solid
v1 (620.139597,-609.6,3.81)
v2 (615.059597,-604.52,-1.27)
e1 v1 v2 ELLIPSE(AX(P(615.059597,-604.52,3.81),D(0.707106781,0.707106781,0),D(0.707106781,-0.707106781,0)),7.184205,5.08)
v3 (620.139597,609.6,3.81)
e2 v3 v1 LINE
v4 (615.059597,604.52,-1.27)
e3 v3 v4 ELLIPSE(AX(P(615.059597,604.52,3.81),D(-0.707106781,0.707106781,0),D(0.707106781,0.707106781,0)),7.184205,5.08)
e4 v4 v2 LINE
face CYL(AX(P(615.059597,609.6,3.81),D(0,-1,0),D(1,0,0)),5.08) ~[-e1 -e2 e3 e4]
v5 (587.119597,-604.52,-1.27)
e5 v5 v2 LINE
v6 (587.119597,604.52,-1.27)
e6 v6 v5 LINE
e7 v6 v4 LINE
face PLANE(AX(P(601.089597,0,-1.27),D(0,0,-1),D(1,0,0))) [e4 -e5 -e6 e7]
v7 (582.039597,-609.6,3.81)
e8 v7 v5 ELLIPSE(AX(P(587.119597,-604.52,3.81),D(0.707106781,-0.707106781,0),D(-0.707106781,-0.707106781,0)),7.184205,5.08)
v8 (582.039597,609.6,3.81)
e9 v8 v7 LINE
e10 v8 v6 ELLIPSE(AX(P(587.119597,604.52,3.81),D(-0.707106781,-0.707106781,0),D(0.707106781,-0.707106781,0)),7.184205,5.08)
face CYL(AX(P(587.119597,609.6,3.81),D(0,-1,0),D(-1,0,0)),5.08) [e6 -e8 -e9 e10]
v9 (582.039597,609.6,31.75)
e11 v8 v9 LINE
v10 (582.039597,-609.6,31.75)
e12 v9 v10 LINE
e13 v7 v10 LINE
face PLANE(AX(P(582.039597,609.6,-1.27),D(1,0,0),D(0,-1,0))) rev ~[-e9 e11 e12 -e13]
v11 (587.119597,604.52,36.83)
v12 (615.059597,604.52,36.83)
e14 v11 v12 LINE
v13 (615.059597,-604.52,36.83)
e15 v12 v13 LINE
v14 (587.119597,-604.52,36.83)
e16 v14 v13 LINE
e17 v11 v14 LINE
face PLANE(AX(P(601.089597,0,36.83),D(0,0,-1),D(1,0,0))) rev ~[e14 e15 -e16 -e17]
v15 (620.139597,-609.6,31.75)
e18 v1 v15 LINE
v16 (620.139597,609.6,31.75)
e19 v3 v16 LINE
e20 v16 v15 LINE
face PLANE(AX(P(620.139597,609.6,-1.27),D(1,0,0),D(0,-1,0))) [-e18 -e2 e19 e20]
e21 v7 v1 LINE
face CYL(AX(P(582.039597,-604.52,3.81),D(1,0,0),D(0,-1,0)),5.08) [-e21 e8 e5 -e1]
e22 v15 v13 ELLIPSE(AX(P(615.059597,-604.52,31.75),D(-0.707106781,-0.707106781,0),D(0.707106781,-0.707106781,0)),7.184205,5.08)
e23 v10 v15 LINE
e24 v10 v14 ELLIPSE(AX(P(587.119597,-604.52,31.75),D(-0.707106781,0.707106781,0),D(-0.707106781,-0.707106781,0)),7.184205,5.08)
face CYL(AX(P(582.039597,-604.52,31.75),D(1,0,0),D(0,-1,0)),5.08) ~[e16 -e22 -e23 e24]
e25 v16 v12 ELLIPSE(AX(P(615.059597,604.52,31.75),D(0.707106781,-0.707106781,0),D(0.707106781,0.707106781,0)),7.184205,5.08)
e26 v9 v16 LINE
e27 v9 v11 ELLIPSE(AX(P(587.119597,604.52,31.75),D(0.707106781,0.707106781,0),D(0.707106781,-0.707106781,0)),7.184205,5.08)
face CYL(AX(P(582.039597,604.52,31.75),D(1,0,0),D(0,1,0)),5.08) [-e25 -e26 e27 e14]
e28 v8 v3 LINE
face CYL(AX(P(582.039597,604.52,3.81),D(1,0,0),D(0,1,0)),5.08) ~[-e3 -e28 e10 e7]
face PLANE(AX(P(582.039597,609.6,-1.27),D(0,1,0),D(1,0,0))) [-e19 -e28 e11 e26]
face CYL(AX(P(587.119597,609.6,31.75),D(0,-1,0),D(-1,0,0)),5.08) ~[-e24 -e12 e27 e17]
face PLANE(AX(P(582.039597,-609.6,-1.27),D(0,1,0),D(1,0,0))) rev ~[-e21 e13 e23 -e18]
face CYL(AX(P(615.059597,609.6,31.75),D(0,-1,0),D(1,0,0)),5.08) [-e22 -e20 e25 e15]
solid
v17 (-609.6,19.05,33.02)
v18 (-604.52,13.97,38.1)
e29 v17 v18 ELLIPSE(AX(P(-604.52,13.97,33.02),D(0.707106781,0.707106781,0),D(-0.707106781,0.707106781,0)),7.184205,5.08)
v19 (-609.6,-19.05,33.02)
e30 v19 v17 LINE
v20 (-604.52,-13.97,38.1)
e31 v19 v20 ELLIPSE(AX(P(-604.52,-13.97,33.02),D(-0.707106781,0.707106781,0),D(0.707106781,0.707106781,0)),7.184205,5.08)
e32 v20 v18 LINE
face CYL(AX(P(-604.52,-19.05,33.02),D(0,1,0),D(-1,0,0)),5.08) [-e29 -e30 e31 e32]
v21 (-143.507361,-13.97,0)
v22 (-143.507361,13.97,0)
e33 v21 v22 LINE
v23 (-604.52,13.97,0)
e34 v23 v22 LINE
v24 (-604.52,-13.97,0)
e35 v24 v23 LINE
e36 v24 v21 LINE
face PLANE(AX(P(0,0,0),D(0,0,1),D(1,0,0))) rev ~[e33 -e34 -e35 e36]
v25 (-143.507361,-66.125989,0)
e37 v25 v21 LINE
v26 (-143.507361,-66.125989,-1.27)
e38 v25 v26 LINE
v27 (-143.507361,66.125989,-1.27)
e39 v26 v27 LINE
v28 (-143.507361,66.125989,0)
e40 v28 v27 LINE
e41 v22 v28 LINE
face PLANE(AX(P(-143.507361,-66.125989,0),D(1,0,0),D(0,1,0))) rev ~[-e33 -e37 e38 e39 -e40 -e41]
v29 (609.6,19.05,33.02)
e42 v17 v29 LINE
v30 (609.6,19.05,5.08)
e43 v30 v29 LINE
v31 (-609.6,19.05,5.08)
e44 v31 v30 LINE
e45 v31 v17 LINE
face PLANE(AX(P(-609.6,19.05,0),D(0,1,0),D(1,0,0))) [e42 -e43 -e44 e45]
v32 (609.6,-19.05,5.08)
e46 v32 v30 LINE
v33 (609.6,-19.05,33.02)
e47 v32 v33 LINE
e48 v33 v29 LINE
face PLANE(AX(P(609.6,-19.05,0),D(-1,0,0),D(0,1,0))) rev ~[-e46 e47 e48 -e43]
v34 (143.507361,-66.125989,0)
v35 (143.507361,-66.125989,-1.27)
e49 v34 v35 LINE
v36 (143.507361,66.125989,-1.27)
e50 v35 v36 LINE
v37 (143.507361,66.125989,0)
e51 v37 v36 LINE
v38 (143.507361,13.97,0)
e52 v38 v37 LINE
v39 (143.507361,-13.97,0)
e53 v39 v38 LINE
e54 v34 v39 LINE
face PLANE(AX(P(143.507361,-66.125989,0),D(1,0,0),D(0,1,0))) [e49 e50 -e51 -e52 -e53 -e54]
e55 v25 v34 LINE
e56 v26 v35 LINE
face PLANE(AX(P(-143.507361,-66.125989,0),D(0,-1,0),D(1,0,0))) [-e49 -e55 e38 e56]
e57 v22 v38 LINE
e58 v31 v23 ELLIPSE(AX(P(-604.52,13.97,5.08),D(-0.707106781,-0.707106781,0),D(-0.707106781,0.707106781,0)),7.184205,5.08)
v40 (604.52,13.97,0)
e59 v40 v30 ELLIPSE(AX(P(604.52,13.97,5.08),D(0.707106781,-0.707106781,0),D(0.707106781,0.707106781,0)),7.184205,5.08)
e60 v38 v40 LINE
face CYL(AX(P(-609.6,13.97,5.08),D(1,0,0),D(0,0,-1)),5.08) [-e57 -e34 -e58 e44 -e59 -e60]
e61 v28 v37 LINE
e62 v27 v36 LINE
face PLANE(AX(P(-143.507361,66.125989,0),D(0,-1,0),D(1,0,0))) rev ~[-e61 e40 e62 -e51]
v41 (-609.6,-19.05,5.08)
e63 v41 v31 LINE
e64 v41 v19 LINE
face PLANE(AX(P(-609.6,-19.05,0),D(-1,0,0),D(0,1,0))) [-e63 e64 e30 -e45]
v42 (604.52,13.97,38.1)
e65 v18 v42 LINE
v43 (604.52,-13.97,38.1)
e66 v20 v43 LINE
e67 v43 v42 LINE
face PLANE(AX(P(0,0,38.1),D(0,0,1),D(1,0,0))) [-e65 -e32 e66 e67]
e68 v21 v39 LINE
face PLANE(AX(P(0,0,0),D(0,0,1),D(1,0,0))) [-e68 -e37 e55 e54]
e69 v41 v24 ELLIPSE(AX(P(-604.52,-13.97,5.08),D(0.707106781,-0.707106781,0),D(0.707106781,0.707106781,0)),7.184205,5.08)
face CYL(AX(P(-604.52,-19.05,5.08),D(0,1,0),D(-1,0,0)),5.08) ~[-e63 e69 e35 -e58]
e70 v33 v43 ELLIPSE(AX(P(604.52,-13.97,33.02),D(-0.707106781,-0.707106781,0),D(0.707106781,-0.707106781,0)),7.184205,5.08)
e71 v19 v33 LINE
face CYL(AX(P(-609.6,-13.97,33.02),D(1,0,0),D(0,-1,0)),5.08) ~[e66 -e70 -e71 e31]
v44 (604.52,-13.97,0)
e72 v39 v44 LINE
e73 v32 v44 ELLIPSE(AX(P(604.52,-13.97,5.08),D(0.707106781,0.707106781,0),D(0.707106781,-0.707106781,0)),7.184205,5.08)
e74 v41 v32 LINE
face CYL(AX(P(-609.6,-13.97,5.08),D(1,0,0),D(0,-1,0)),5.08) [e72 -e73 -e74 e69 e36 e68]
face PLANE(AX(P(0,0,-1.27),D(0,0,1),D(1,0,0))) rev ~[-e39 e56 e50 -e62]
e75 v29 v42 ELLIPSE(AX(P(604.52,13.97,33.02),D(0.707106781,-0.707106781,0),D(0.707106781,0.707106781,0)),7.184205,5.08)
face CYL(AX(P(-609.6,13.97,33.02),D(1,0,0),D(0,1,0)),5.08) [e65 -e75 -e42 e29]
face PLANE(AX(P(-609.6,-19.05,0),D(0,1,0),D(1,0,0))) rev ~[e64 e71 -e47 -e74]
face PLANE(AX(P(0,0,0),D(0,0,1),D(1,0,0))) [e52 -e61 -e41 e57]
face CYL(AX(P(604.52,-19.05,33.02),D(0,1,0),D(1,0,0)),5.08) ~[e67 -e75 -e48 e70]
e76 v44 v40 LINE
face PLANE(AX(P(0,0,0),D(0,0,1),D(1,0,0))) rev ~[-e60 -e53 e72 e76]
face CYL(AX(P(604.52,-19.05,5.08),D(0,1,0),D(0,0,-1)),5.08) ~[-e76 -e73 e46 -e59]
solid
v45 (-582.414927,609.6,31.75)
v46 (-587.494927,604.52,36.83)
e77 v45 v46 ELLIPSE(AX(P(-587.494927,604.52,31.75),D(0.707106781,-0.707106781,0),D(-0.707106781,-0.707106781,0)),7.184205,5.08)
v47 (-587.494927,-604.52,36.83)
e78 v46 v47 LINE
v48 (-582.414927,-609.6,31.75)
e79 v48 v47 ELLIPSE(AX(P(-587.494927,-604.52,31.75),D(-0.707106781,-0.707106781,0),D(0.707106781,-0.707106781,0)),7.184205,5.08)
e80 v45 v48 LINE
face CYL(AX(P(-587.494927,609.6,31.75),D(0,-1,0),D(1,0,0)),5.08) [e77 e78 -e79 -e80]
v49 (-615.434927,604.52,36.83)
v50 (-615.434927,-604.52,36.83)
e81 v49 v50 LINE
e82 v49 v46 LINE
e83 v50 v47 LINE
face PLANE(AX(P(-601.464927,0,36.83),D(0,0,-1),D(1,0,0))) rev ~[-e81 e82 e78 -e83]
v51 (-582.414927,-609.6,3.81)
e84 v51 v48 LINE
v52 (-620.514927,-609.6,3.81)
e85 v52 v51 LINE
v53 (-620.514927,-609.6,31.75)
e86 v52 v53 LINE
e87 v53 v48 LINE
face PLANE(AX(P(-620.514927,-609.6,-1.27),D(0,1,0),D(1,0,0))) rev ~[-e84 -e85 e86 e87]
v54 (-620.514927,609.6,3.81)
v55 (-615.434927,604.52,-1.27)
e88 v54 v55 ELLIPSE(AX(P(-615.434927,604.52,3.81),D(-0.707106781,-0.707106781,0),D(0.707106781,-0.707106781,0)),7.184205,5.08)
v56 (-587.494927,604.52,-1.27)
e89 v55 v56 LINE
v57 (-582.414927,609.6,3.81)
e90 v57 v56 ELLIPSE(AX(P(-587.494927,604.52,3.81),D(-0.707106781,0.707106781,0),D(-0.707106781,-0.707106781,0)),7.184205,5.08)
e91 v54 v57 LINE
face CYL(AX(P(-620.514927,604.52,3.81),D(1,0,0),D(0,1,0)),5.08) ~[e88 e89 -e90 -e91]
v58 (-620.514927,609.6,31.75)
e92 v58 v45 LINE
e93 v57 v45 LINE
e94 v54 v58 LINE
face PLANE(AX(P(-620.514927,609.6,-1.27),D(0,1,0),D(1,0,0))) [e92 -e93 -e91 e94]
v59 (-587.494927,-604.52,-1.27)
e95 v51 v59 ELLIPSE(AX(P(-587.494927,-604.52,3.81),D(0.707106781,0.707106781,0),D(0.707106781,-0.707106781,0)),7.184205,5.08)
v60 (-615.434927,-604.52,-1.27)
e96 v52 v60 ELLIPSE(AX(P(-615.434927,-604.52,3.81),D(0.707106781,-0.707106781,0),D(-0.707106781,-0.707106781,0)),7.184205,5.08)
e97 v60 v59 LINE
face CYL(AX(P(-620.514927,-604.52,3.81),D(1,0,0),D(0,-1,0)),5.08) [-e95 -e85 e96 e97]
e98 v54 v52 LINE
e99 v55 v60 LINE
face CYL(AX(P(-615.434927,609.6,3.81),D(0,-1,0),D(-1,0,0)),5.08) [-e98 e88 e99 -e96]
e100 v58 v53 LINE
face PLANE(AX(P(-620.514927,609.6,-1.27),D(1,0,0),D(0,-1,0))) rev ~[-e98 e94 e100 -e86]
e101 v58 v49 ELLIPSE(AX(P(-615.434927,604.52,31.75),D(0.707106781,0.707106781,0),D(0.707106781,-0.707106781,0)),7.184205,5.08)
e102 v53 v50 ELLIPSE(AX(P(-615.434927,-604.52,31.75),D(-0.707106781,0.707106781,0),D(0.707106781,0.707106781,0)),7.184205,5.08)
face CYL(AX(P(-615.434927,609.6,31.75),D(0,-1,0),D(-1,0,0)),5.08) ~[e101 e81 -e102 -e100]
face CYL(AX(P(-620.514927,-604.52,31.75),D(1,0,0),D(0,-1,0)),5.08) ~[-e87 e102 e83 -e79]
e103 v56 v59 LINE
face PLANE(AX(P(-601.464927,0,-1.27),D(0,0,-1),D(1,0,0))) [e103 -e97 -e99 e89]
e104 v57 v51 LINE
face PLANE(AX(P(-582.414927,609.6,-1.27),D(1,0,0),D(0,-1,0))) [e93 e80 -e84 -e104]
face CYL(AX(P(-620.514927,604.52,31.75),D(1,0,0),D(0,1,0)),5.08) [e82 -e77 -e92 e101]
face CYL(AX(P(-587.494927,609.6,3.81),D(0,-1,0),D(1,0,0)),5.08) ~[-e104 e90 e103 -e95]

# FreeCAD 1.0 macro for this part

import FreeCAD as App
import Part
import Sketcher

V = App.Vector
Q = App.Units.Quantity


def edges_at(feature, points):
    """Names of the edges that pass closest to the given points."""
    edges = feature.Shape.Edges
    near = lambda p: min(range(len(edges)), key=lambda i: edges[i].distToShape(Part.Vertex(*p))[0])
    return sorted({f"Edge{near(p) + 1}" for p in points})

doc = App.newDocument("Part")
body = doc.addObject("PartDesign::Body", "Body")

sketch1 = doc.addObject("Sketcher::SketchObject", "Sketch")
body.addObject(sketch1)
sketch1.AttachmentSupport = (doc.XY_Plane, [""])
sketch1.MapMode = "FlatFace"
sketch1.addGeometry([
    Part.LineSegment(V(-610, 19, 0), V(-610, -19, 0)),
    Part.LineSegment(V(-610, -19, 0), V(610, -19, 0)),
    Part.LineSegment(V(610, -19, 0), V(610, 19, 0)),
    Part.LineSegment(V(610, 19, 0), V(-610, 19, 0)),
], False)
sketch1.addConstraint([
    Sketcher.Constraint("Coincident", 0, 2, 1, 1),
    Sketcher.Constraint("Coincident", 1, 2, 2, 1),
    Sketcher.Constraint("Coincident", 2, 2, 3, 1),
    Sketcher.Constraint("Coincident", 3, 2, 0, 1),
    Sketcher.Constraint("Vertical", 0),
    Sketcher.Constraint("Horizontal", 1),
    Sketcher.Constraint("Vertical", 2),
    Sketcher.Constraint("Horizontal", 3),
    Sketcher.Constraint("Symmetric", 0, 2, 2, 2, -1, 1),
    Sketcher.Constraint("DistanceX", 1, 1, 1, 2, Q("48 in")),
    Sketcher.Constraint("DistanceY", 0, 2, 0, 1, Q("1.5 in")),
])
pad1 = doc.addObject("PartDesign::Pad", "Pad")
body.addObject(pad1)
pad1.Profile = sketch1
pad1.Length = Q("1.5 in")
doc.recompute()

fillet = doc.addObject("PartDesign::Fillet", "Fillet")
body.addObject(fillet)
fillet.Base = (pad1, edges_at(pad1, [
    (-609.6, 0, 38.1),
    (0, -19.05, 38.1),
    (609.6, 0, 38.1),
    (0, 19.05, 38.1),
]))
fillet.Radius = Q("0.2 in")
doc.recompute()

fillet2 = doc.addObject("PartDesign::Fillet", "Fillet001")
body.addObject(fillet2)
fillet2.Base = (fillet, edges_at(fillet, [
    (-609.6, 0, 0),
    (0, 19.05, 0),
    (0, -19.05, 0),
    (609.6, 0, 0),
]))
fillet2.Radius = Q("0.2 in")

sketch2 = doc.addObject("Sketcher::SketchObject", "Sketch001")
body.addObject(sketch2)
sketch2.AttachmentSupport = (doc.XY_Plane, [""])
sketch2.MapMode = "FlatFace"
sketch2.addGeometry([
    Part.LineSegment(V(-144, 66, 0), V(-144, -66, 0)),
    Part.LineSegment(V(-144, -66, 0), V(144, -66, 0)),
    Part.LineSegment(V(144, -66, 0), V(144, 66, 0)),
    Part.LineSegment(V(144, 66, 0), V(-144, 66, 0)),
], False)
sketch2.addConstraint([
    Sketcher.Constraint("Coincident", 0, 2, 1, 1),
    Sketcher.Constraint("Coincident", 1, 2, 2, 1),
    Sketcher.Constraint("Coincident", 2, 2, 3, 1),
    Sketcher.Constraint("Coincident", 3, 2, 0, 1),
    Sketcher.Constraint("Vertical", 0),
    Sketcher.Constraint("Horizontal", 1),
    Sketcher.Constraint("Vertical", 2),
    Sketcher.Constraint("Horizontal", 3),
    Sketcher.Constraint("Symmetric", 0, 2, 2, 2, -1, 1),
    Sketcher.Constraint("DistanceX", 1, 1, 1, 2, 287.014722),
    Sketcher.Constraint("DistanceY", 0, 2, 0, 1, 132.251978),
])
pad2 = doc.addObject("PartDesign::Pad", "Pad001")
body.addObject(pad2)
pad2.Profile = sketch2
pad2.Length = Q("0.05 in")
pad2.Reversed = True
body2 = doc.addObject("PartDesign::Body", "Body001")
body2.AllowCompound = True

sketch3 = doc.addObject("Sketcher::SketchObject", "Sketch002")
body2.addObject(sketch3)
sketch3.AttachmentSupport = (doc.getObject("XY_Plane001"), [""])
sketch3.MapMode = "FlatFace"
sketch3.AttachmentOffset = App.Placement(V(0, 0, -0.05 * 25.4), App.Rotation())
sketch3.addGeometry([
    Part.LineSegment(V(-621, -610, 0), V(-621, 610, 0)),
    Part.LineSegment(V(-621, 610, 0), V(-582, 610, 0)),
    Part.LineSegment(V(-582, 610, 0), V(-582, -610, 0)),
    Part.LineSegment(V(-582, -610, 0), V(-621, -610, 0)),
    Part.LineSegment(V(582, -610, 0), V(582, 610, 0)),
    Part.LineSegment(V(582, 610, 0), V(620, 610, 0)),
    Part.LineSegment(V(620, 610, 0), V(620, -610, 0)),
    Part.LineSegment(V(620, -610, 0), V(582, -610, 0)),
], False)
sketch3.addConstraint([
    Sketcher.Constraint("Coincident", 0, 2, 1, 1),
    Sketcher.Constraint("Coincident", 1, 2, 2, 1),
    Sketcher.Constraint("Coincident", 2, 2, 3, 1),
    Sketcher.Constraint("Coincident", 3, 2, 0, 1),
    Sketcher.Constraint("Coincident", 4, 2, 5, 1),
    Sketcher.Constraint("Coincident", 5, 2, 6, 1),
    Sketcher.Constraint("Coincident", 6, 2, 7, 1),
    Sketcher.Constraint("Coincident", 7, 2, 4, 1),
    Sketcher.Constraint("Vertical", 0),
    Sketcher.Constraint("Horizontal", 1),
    Sketcher.Constraint("Vertical", 2),
    Sketcher.Constraint("Horizontal", 3),
    Sketcher.Constraint("Vertical", 4),
    Sketcher.Constraint("Horizontal", 5),
    Sketcher.Constraint("Vertical", 6),
    Sketcher.Constraint("Horizontal", 7),
    Sketcher.Constraint("Horizontal", 1, 2, 4, 2),
    Sketcher.Constraint("Horizontal", 3, 2, 6, 2),
    Sketcher.Constraint("Equal", 3, 5),
    Sketcher.Constraint("DistanceY", 0, 1, 0, 2, Q("48 in")),
    Sketcher.Constraint("DistanceX", 1, 1, 1, 2, Q("1.5 in")),
    Sketcher.Constraint("DistanceY", -1, 1, 0, 2, Q("24 in")),
    Sketcher.Constraint("DistanceX", 0, 2, -1, 1, 620.514927),
    Sketcher.Constraint("DistanceX", -1, 1, 4, 2, 582.039597),
])
pad3 = doc.addObject("PartDesign::Pad", "Pad002")
body2.addObject(pad3)
pad3.Profile = sketch3
pad3.Length = Q("1.5 in")
doc.recompute()

fillet3 = doc.addObject("PartDesign::Fillet", "Fillet002")
body2.addObject(fillet3)
fillet3.Base = (pad3, edges_at(pad3, [
    (-620.515, 0, -1.27),
    (-582.415, 0, -1.27),
    (-601.465, -609.6, -1.27),
    (-601.465, 609.6, -1.27),
    (601.09, 609.6, -1.27),
    (582.04, 0, -1.27),
    (620.14, 0, -1.27),
    (601.09, -609.6, -1.27),
    (-601.465, -609.6, 36.83),
    (-582.415, 0, 36.83),
    (-620.515, 0, 36.83),
    (-601.465, 609.6, 36.83),
    (601.09, 609.6, 36.83),
    (620.14, 0, 36.83),
    (582.04, 0, 36.83),
    (601.09, -609.6, 36.83),
]))
fillet3.Radius = Q("0.2 in")

doc.recompute()
